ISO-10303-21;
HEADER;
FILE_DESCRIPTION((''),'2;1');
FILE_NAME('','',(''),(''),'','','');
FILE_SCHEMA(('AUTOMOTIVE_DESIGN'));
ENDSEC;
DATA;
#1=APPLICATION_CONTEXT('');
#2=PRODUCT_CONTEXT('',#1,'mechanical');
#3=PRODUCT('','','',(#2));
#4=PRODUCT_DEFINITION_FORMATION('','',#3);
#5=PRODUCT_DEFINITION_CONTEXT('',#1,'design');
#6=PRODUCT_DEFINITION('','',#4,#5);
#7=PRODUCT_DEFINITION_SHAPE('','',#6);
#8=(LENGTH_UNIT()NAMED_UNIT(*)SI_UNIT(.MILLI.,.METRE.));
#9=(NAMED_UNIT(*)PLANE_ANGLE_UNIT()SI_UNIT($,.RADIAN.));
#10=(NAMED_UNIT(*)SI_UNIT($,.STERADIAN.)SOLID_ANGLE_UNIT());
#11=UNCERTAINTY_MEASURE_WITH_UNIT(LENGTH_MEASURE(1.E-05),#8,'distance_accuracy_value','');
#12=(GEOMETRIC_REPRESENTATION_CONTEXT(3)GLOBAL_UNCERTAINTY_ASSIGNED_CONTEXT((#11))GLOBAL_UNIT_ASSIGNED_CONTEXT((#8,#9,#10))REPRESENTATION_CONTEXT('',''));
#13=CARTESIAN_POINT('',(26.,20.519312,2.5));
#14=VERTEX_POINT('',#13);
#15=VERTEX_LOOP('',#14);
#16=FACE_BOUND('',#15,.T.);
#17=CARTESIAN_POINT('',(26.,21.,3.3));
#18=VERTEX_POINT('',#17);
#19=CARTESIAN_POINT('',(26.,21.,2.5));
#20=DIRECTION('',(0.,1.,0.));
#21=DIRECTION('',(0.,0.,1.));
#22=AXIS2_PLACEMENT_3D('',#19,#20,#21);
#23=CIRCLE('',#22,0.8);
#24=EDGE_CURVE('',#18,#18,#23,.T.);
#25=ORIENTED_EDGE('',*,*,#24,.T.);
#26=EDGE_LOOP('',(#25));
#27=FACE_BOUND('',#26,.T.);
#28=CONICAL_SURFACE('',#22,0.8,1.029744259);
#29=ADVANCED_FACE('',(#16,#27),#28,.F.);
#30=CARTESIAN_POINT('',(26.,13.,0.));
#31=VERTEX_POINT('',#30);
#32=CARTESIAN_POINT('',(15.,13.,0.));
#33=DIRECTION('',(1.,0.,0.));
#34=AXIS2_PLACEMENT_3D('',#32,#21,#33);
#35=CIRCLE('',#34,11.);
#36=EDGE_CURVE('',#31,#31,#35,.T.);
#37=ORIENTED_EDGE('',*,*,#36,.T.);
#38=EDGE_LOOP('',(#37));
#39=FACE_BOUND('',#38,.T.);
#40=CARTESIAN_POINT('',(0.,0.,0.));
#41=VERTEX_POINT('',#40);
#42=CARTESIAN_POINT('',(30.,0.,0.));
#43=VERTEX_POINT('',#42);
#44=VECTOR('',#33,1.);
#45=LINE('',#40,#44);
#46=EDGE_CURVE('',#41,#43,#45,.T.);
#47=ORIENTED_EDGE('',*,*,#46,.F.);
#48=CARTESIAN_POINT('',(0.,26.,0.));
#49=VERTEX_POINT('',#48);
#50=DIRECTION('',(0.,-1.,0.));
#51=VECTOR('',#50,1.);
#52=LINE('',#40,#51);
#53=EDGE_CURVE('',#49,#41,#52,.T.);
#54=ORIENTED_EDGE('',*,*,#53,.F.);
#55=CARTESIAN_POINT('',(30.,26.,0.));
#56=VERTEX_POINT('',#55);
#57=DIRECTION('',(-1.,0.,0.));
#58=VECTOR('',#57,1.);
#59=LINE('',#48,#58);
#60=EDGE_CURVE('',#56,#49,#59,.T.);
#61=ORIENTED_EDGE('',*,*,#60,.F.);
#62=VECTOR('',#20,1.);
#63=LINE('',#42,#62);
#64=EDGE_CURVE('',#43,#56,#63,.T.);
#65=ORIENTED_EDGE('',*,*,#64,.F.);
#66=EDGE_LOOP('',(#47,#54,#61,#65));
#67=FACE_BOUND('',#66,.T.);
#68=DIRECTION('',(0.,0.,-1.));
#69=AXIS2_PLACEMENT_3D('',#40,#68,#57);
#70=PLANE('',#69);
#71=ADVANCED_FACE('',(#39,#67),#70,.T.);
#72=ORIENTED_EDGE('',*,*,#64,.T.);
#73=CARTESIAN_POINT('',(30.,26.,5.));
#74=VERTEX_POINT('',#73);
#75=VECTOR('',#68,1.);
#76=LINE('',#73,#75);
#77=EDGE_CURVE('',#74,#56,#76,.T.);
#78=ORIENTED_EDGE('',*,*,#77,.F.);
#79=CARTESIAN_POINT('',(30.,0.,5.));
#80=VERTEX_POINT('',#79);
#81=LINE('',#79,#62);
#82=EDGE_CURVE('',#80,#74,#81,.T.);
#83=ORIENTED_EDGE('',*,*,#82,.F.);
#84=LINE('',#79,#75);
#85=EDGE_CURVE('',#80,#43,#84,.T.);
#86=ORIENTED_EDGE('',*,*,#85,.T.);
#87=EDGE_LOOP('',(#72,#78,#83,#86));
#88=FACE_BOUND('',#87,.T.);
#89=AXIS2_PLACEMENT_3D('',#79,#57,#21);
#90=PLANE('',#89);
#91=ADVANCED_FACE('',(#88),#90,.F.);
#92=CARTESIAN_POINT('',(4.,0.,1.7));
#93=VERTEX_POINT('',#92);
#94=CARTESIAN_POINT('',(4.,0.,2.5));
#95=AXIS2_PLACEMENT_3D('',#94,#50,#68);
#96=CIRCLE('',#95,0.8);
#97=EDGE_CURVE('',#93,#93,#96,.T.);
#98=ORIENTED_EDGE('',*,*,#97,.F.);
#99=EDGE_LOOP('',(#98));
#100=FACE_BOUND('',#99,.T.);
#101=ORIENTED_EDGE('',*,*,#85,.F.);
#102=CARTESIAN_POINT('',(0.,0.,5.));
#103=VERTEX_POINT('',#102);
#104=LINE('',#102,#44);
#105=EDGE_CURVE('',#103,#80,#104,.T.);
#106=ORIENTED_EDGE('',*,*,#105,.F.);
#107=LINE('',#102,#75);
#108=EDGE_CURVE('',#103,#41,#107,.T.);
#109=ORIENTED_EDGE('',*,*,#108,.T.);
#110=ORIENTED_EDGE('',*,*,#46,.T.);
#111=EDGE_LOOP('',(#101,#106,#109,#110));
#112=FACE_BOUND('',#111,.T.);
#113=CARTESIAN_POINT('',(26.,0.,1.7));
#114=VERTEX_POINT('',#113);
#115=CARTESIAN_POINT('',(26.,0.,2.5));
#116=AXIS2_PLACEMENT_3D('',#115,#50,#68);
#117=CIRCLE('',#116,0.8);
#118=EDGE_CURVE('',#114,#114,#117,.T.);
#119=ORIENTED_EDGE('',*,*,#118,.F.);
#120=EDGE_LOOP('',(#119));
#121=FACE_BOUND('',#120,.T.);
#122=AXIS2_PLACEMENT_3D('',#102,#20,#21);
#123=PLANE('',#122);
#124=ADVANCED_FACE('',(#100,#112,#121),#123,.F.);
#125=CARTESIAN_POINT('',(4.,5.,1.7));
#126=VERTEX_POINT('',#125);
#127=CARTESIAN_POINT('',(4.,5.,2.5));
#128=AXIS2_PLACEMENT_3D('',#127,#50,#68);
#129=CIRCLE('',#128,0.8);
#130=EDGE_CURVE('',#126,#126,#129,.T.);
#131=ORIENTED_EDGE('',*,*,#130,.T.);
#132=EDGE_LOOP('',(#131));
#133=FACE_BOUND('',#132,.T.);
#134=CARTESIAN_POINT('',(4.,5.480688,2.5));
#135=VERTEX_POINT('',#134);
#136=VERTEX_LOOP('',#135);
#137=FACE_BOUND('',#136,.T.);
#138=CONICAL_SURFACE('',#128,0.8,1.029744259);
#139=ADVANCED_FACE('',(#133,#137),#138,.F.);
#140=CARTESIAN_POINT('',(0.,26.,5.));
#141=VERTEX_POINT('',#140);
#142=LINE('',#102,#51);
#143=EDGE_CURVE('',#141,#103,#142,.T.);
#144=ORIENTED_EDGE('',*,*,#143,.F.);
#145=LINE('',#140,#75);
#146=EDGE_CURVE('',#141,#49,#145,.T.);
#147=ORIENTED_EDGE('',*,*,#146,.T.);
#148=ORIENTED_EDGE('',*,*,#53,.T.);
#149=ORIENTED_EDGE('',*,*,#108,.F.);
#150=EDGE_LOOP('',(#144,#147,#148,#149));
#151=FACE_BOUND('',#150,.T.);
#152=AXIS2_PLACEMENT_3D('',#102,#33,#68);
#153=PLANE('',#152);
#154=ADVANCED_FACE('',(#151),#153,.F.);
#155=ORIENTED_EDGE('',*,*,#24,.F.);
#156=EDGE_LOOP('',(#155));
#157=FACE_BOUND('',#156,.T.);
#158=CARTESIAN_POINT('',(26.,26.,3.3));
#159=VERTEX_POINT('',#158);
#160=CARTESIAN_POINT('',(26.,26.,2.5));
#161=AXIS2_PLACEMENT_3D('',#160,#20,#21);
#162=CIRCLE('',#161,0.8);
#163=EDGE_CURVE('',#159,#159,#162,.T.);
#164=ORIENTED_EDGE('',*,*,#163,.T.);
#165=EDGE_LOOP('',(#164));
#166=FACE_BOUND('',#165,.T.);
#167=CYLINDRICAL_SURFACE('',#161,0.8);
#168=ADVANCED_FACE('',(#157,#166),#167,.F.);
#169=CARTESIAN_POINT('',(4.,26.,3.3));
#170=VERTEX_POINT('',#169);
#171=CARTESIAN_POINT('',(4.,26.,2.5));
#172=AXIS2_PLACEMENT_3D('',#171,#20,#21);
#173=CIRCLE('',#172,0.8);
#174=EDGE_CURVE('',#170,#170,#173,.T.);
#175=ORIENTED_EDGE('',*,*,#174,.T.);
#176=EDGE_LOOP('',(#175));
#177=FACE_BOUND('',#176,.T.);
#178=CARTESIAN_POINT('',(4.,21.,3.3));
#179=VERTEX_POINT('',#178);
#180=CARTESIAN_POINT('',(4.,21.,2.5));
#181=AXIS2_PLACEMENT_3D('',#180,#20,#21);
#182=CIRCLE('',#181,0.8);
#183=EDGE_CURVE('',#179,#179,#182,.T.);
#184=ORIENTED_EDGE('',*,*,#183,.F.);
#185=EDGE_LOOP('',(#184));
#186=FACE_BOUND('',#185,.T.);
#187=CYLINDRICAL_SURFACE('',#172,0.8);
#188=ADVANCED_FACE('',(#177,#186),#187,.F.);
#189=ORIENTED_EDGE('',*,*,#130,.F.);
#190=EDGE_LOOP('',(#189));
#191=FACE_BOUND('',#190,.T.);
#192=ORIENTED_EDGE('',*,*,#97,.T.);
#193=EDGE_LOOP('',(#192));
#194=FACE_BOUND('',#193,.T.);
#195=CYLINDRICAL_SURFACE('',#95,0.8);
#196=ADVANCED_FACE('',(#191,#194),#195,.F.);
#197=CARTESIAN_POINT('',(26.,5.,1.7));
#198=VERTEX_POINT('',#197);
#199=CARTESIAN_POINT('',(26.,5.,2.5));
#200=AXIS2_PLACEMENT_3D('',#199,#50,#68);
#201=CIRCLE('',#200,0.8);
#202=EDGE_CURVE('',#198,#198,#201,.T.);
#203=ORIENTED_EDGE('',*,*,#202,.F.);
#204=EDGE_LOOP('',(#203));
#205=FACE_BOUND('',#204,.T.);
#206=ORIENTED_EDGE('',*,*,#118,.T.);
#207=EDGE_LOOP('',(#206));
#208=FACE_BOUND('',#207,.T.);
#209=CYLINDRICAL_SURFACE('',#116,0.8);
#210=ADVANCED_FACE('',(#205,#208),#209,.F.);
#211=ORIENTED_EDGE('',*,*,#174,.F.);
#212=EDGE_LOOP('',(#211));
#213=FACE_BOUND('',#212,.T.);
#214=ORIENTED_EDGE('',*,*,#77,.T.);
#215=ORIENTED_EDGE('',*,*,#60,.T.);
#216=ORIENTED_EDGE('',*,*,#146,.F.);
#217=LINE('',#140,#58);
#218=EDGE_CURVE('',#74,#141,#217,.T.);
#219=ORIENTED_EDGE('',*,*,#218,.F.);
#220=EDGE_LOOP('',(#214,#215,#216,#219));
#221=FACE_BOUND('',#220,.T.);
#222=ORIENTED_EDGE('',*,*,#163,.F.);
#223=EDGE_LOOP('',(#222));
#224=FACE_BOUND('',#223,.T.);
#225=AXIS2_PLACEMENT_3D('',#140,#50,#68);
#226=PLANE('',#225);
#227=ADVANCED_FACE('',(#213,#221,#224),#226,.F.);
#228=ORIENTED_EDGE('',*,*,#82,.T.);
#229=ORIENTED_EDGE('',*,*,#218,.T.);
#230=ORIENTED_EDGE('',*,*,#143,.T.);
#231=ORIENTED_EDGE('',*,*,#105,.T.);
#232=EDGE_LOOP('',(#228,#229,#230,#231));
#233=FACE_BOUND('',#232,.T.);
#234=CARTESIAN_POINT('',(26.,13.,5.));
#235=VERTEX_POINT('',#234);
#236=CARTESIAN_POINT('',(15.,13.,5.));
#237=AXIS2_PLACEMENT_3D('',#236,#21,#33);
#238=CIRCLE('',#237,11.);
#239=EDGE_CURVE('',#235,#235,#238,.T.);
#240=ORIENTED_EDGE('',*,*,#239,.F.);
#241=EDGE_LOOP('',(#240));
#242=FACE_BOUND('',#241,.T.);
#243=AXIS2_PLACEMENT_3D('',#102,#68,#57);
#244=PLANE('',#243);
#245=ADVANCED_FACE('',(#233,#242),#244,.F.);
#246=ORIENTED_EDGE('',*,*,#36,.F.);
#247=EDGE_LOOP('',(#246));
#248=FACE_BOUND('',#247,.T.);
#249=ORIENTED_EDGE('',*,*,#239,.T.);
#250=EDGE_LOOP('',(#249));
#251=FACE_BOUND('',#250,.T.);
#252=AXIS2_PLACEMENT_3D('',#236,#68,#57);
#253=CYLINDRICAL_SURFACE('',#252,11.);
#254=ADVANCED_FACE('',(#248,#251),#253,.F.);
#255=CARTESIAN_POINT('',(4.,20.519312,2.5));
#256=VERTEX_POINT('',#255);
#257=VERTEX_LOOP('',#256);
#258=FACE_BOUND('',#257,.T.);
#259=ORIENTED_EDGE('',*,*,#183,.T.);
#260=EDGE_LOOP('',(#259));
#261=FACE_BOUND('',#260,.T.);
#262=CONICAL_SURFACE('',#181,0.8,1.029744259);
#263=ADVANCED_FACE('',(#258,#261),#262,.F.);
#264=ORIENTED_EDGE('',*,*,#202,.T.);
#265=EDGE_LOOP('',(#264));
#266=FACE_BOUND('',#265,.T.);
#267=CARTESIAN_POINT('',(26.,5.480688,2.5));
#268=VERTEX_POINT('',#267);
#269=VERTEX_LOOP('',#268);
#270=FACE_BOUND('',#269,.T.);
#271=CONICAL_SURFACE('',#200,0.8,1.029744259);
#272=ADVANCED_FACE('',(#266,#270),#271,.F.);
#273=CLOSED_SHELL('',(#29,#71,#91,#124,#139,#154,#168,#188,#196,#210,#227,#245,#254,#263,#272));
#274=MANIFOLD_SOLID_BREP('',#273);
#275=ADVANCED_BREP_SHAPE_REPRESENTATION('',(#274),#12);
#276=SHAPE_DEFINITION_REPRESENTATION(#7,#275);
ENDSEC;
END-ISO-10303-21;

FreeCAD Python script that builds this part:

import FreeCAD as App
import Part
import Sketcher

V = App.Vector

doc = App.newDocument("Part")
body = doc.addObject("PartDesign::Body", "Body")

sketch1 = body.newObject("Sketcher::SketchObject", "Sketch")
sketch1.AttachmentSupport = (doc.getObject("XY_Plane"), [""])
sketch1.MapMode = "FlatFace"
sketch1.addGeometry([
    Part.LineSegment(V(0, 26, 0), V(0, 0, 0)),
    Part.LineSegment(V(0, 0, 0), V(30, 0, 0)),
    Part.LineSegment(V(30, 0, 0), V(30, 26, 0)),
    Part.LineSegment(V(30, 26, 0), V(0, 26, 0)),
    Part.Circle(V(15, 13, 0), V(0, 0, 1), 11),
], False)
sketch1.addConstraint([
    Sketcher.Constraint("Coincident", 0, 2, 1, 1),
    Sketcher.Constraint("Coincident", 1, 2, 2, 1),
    Sketcher.Constraint("Coincident", 2, 2, 3, 1),
    Sketcher.Constraint("Coincident", 3, 2, 0, 1),
    Sketcher.Constraint("Vertical", 0),
    Sketcher.Constraint("Horizontal", 1),
    Sketcher.Constraint("Vertical", 2),
    Sketcher.Constraint("Horizontal", 3),
    Sketcher.Constraint("Coincident", 0, 2, -1, 1),
    Sketcher.Constraint("Diameter", 4, 22.0),
    Sketcher.Constraint("DistanceX", 1, 1, 1, 2, 30.0),
    Sketcher.Constraint("DistanceY", 0, 2, 0, 1, 26.0),
    Sketcher.Constraint("DistanceX", -1, 1, 4, 3, 15.0),
    Sketcher.Constraint("DistanceY", -1, 1, 4, 3, 13.0),
])
pad1 = body.newObject("PartDesign::Pad", "Pad")
pad1.Profile = sketch1
pad1.Length = 5

sketch2 = body.newObject("Sketcher::SketchObject", "Sketch001")
sketch2.AttachmentSupport = (doc.getObject("XZ_Plane"), [""])
sketch2.MapMode = "FlatFace"
sketch2.AttachmentOffset = App.Placement(V(0, 0, -26), App.Rotation())
sketch2.addGeometry([
    Part.Circle(V(4, 2.5, 0), V(0, 0, 1), 0.8),
    Part.Circle(V(26, 2.5, 0), V(0, 0, 1), 0.8),
], False)
sketch2.addConstraint([
    Sketcher.Constraint("Equal", 0, 1),
    Sketcher.Constraint("Horizontal", 0, 3, 1, 3),
    Sketcher.Constraint("Diameter", 0, 1.6),
    Sketcher.Constraint("DistanceX", -1, 1, 0, 3, 4.0),
    Sketcher.Constraint("DistanceX", -1, 1, 1, 3, 26.0),
    Sketcher.Constraint("DistanceY", -1, 1, 0, 3, 2.5),
])
doc.recompute()
hole = body.newObject("PartDesign::Hole", "Hole")
hole.Profile = sketch2
hole.ThreadType = "None"
hole.Diameter = 1.6
hole.DepthType = "Dimension"
hole.Depth = 5
hole.DrillPoint = "Angled"
hole.DrillPointAngle = 118
hole.Reversed = True

sketch3 = body.newObject("Sketcher::SketchObject", "Sketch002")
sketch3.AttachmentSupport = (doc.getObject("XZ_Plane"), [""])
sketch3.MapMode = "FlatFace"
sketch3.addGeometry([
    Part.Circle(V(4, 2.5, 0), V(0, 0, 1), 0.8),
    Part.Circle(V(26, 2.5, 0), V(0, 0, 1), 0.8),
], False)
sketch3.addConstraint([
    Sketcher.Constraint("Equal", 0, 1),
    Sketcher.Constraint("Horizontal", 0, 3, 1, 3),
    Sketcher.Constraint("Diameter", 0, 1.6),
    Sketcher.Constraint("DistanceX", -1, 1, 0, 3, 4.0),
    Sketcher.Constraint("DistanceX", -1, 1, 1, 3, 26.0),
    Sketcher.Constraint("DistanceY", -1, 1, 0, 3, 2.5),
])
doc.recompute()
hole2 = body.newObject("PartDesign::Hole", "Hole001")
hole2.Profile = sketch3
hole2.ThreadType = "None"
hole2.Diameter = 1.6
hole2.DepthType = "Dimension"
hole2.Depth = 5
hole2.DrillPoint = "Angled"
hole2.DrillPointAngle = 118

doc.recompute()
